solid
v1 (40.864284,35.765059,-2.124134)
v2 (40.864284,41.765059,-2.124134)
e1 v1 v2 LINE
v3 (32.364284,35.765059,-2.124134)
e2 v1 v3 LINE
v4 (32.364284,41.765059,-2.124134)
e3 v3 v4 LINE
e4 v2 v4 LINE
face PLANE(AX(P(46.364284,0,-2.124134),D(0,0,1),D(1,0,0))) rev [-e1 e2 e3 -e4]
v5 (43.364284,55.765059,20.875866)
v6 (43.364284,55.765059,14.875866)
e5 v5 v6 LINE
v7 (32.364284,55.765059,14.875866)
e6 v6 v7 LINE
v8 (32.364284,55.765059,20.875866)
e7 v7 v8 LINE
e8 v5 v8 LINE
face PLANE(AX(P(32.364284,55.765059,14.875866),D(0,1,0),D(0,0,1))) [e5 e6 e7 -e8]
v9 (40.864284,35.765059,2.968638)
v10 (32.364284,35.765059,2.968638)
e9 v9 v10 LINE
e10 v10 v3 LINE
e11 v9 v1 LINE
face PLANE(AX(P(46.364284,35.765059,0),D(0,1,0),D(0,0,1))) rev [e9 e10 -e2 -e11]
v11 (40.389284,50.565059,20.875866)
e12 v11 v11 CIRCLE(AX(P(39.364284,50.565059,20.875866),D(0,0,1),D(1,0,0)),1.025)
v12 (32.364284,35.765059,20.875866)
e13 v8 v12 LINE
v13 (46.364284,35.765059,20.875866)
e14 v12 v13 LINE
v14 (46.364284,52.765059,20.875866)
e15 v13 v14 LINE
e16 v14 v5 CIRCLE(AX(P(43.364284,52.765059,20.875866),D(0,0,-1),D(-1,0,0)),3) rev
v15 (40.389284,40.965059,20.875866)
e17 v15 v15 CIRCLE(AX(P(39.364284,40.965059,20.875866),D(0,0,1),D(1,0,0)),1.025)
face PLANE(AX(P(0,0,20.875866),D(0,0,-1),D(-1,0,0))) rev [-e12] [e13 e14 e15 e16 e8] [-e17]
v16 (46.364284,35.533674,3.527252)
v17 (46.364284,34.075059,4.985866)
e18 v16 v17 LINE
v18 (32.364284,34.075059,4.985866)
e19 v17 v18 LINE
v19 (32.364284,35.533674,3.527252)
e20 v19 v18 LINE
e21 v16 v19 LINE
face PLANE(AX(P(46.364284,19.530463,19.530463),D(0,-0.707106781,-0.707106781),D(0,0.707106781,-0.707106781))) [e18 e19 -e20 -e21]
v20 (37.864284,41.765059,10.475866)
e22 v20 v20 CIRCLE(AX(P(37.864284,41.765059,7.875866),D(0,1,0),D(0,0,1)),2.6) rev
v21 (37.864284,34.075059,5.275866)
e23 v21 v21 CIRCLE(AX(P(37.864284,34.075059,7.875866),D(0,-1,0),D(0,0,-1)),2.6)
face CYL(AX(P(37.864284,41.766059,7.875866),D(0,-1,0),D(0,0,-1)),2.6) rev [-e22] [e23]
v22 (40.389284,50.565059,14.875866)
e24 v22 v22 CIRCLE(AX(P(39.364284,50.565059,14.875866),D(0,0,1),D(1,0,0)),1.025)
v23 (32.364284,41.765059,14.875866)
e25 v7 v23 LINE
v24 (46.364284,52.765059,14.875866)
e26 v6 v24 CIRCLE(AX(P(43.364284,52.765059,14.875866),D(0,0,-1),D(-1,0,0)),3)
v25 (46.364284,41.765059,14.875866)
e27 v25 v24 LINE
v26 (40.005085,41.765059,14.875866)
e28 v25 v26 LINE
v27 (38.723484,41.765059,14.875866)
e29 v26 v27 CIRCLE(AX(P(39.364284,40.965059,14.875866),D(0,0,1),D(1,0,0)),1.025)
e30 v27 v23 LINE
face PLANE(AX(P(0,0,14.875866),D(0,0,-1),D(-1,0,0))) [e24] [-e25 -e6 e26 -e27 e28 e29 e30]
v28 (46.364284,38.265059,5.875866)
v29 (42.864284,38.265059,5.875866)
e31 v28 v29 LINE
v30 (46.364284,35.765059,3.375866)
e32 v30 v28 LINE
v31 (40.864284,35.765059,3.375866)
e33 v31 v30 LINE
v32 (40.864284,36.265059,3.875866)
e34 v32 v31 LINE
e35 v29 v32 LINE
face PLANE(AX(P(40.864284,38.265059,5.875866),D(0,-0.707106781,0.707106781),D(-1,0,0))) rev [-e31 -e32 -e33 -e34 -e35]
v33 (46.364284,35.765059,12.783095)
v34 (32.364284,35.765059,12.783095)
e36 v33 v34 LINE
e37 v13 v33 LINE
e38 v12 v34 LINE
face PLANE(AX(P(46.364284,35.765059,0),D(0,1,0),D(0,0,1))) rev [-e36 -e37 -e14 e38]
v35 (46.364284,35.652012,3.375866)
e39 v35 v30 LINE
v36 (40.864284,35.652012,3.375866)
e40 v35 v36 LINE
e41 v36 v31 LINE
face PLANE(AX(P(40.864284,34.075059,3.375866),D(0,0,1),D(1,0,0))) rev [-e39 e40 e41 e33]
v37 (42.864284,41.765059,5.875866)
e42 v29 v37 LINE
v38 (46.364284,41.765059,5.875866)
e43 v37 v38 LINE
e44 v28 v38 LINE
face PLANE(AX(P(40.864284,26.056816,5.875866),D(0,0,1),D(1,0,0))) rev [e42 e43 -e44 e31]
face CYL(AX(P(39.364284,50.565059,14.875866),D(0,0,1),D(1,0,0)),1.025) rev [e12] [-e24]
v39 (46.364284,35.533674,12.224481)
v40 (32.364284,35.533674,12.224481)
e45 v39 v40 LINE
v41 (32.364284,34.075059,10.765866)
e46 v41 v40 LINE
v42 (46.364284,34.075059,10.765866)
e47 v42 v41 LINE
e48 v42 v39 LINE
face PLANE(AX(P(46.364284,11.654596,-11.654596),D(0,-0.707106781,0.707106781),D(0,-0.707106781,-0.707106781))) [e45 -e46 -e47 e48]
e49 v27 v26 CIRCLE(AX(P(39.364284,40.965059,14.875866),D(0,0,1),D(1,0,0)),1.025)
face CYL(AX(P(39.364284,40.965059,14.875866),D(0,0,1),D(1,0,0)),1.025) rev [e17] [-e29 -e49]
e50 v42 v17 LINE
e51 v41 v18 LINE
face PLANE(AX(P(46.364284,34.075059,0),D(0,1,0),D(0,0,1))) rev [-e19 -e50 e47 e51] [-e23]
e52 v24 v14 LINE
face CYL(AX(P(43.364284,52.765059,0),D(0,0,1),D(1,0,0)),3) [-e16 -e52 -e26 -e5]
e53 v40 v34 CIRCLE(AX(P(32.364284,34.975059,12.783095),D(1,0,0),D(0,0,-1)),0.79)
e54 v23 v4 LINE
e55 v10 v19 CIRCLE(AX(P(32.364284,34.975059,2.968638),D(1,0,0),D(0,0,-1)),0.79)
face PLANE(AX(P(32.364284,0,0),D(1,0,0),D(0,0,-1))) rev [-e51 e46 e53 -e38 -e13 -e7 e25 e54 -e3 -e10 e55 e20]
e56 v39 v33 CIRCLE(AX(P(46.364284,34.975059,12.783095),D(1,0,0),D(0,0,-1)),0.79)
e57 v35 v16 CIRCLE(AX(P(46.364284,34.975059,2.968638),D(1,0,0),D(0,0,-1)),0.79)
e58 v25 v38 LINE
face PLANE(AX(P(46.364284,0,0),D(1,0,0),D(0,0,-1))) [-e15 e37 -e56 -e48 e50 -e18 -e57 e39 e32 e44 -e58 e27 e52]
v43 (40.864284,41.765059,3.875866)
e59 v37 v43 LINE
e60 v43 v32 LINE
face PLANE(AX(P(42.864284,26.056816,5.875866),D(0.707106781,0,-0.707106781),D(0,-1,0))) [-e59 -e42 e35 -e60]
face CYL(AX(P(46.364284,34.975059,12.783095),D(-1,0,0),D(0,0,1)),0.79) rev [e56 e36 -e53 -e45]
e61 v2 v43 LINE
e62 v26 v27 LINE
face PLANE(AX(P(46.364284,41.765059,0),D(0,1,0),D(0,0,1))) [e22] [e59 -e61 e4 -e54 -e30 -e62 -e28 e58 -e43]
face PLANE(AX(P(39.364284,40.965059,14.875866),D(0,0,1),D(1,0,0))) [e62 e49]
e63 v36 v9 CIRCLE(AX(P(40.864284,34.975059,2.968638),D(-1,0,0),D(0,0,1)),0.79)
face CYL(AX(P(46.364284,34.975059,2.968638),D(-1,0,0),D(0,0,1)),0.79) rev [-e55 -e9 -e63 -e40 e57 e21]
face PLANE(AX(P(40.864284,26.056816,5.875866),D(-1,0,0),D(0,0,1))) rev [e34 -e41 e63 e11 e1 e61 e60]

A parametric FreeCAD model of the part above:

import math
import FreeCAD as App
import Part
import Sketcher


def edges_at(feature, points):
    """Names of the edges that pass closest to the given points."""
    edges = feature.Shape.Edges
    near = lambda p: min(range(len(edges)), key=lambda i: edges[i].distToShape(Part.Vertex(*p))[0])
    return sorted({f"Edge{near(p) + 1}" for p in points})


def add_polygon(sketch, points):
    """Adds a closed chain of lines whose ends are joined by coincident constraints."""
    first, n = sketch.GeometryCount, len(points)
    for a, b in zip(points, points[1:] + points[:1]):
        sketch.addGeometry(Part.LineSegment(App.Vector(*a, 0), App.Vector(*b, 0)), False)
    for i in range(n):
        sketch.addConstraint(Sketcher.Constraint("Coincident", first + i, 2, first + (i + 1) % n, 1))

doc = App.newDocument("Part")
params = doc.addObject("Spreadsheet::Sheet", "Params")
for row, (alias, value) in enumerate([
    ("sketch1_width", "6 mm"),
    ("sketch1_height", "20 mm"),
    ("sketch1_radius", "0.79 mm"),
    ("sketch1_height2", "5.78 mm"),
    ("pad1_length", "14 mm"),
    ("sketch2_diameter", "5.2 mm"),
    ("sketch3_width", "14 mm"),
    ("sketch3_height", "20 mm"),
    ("pad2_length", "3 mm"),
    ("pad2_length2", "3 mm"),
    ("sketch4_diameter", "2.05 mm"),
    ("pocket2_length", "6 mm"),
    ("sketch5_height", "8 mm"),
    ("sketch5_width", "5.5 mm"),
    ("pocket3_length", "6 mm"),
    ("chamfer_size", "2 mm"),
    ("chamfer2_size", "2.5 mm"),
    ("sketch6_width", "5.5 mm"),
    ("fillet_radius", "3 mm"),
], start=1):
    params.set(f"A{row}", alias)
    params.set(f"B{row}", "=" + value)
    params.setAlias(f"B{row}", alias)

body = doc.addObject("PartDesign::Body", "Body")

sketch1 = body.newObject("Sketcher::SketchObject", "Sketch")
sketch1.AttachmentSupport = (doc.getObject("YZ_Plane"), [""])
sketch1.MapMode = "FlatFace"
sketch1.AttachmentOffset = App.Placement(App.Vector(0, 0, 32.364284), App.Rotation())
sketch1.addGeometry(Part.LineSegment(App.Vector(41.765059, 17.875866, 0), App.Vector(35.765059, 17.875866, 0)), False)
sketch1.addGeometry(Part.LineSegment(App.Vector(35.765059, 17.875866, 0), App.Vector(35.765059, 12.783095, 0)), False)
sketch1.addGeometry(Part.ArcOfCircle(Part.Circle(App.Vector(34.975059, 12.783095, 0), App.Vector(0, 0, 1), 0.79), math.radians(-45), math.radians(0)), False)
sketch1.addGeometry(Part.LineSegment(App.Vector(35.533674, 12.224481, 0), App.Vector(34.075059, 10.765866, 0)), False)
sketch1.addGeometry(Part.LineSegment(App.Vector(34.075059, 10.765866, 0), App.Vector(34.075059, 4.985866, 0)), False)
sketch1.addGeometry(Part.LineSegment(App.Vector(34.075059, 4.985866, 0), App.Vector(35.533674, 3.527252, 0)), False)
sketch1.addGeometry(Part.ArcOfCircle(Part.Circle(App.Vector(34.975059, 2.968638, 0), App.Vector(0, 0, 1), 0.79), math.radians(0), math.radians(45)), False)
sketch1.addGeometry(Part.LineSegment(App.Vector(35.765059, 2.968638, 0), App.Vector(35.765059, -2.124134, 0)), False)
sketch1.addGeometry(Part.LineSegment(App.Vector(35.765059, -2.124134, 0), App.Vector(41.765059, -2.124134, 0)), False)
sketch1.addGeometry(Part.LineSegment(App.Vector(41.765059, -2.124134, 0), App.Vector(41.765059, 17.875866, 0)), False)
sketch1.addConstraint(Sketcher.Constraint("Coincident", 0, 2, 1, 1))
sketch1.addConstraint(Sketcher.Constraint("Tangent", 1, 2, 2, 2))
sketch1.addConstraint(Sketcher.Constraint("Tangent", 2, 1, 3, 1))
sketch1.addConstraint(Sketcher.Constraint("Coincident", 3, 2, 4, 1))
sketch1.addConstraint(Sketcher.Constraint("Coincident", 4, 2, 5, 1))
sketch1.addConstraint(Sketcher.Constraint("Tangent", 5, 2, 6, 2))
sketch1.addConstraint(Sketcher.Constraint("Tangent", 6, 1, 7, 1))
sketch1.addConstraint(Sketcher.Constraint("Coincident", 7, 2, 8, 1))
sketch1.addConstraint(Sketcher.Constraint("Coincident", 8, 2, 9, 1))
sketch1.addConstraint(Sketcher.Constraint("Coincident", 9, 2, 0, 1))
sketch1.addConstraint(Sketcher.Constraint("Horizontal", 0))
sketch1.addConstraint(Sketcher.Constraint("Vertical", 1))
sketch1.addConstraint(Sketcher.Constraint("Vertical", 4))
sketch1.addConstraint(Sketcher.Constraint("Vertical", 7))
sketch1.addConstraint(Sketcher.Constraint("Horizontal", 8))
sketch1.addConstraint(Sketcher.Constraint("Vertical", 9))
sketch1.addConstraint(Sketcher.Constraint("Equal", 2, 6))
sketch1.addConstraint(Sketcher.Constraint("Perpendicular", 3, 5))
sketch1.addConstraint(Sketcher.Constraint("Vertical", 2, 3, 6, 3))
sketch1.addConstraint(Sketcher.Constraint("Vertical", 2, 1, 5, 2))
sketch1.addConstraint(Sketcher.Constraint("Equal", 1, 7))
sketch1.addConstraint(Sketcher.Constraint("DistanceX", 0, 2, 0, 1, 6.0))
sketch1.addConstraint(Sketcher.Constraint("DistanceY", 9, 1, 9, 2, 20.0))
sketch1.addConstraint(Sketcher.Constraint("Radius", 2, 0.79))
sketch1.addConstraint(Sketcher.Constraint("DistanceY", 4, 2, 4, 1, 5.78))
sketch1.addConstraint(Sketcher.Constraint("DistanceX", 3, 2, 2, 3, 0.9))
sketch1.addConstraint(Sketcher.Constraint("DistanceX", -1, 1, 2, 3, 34.975059))
sketch1.addConstraint(Sketcher.Constraint("DistanceY", -1, 1, 2, 1, 12.224481))
sketch1.setExpression("Constraints[21]", "Params.sketch1_width")
sketch1.setExpression("Constraints[22]", "Params.sketch1_height")
sketch1.setExpression("Constraints[23]", "Params.sketch1_radius")
sketch1.setExpression("Constraints[24]", "Params.sketch1_height2")
pad1 = body.newObject("PartDesign::Pad", "Pad")
pad1.Profile = sketch1
pad1.setExpression("Length", "Params.pad1_length")

sketch2 = body.newObject("Sketcher::SketchObject", "Sketch001")
sketch2.AttachmentSupport = (doc.getObject("XZ_Plane"), [""])
sketch2.MapMode = "FlatFace"
sketch2.AttachmentOffset = App.Placement(App.Vector(0, 0, -34.075059), App.Rotation())
sketch2.addGeometry(Part.Circle(App.Vector(37.864284, 7.875866, 0), App.Vector(0, 0, 1), 2.6), False)
sketch2.addConstraint(Sketcher.Constraint("Diameter", 0, 5.2))
sketch2.addConstraint(Sketcher.Constraint("DistanceX", -1, 1, 0, 3, 37.864284))
sketch2.addConstraint(Sketcher.Constraint("DistanceY", -1, 1, 0, 3, 7.875866))
sketch2.setExpression("Constraints[0]", "Params.sketch2_diameter")
pocket1 = body.newObject("PartDesign::Pocket", "Pocket")
pocket1.Profile = sketch2
pocket1.Type = "UpToFirst"

sketch3 = body.newObject("Sketcher::SketchObject", "Sketch002")
sketch3.AttachmentSupport = (doc.getObject("XY_Plane"), [""])
sketch3.MapMode = "FlatFace"
sketch3.AttachmentOffset = App.Placement(App.Vector(0, 0, 17.875866), App.Rotation())
add_polygon(sketch3, [(32.364284, 55.765059), (32.364284, 35.765059), (46.364284, 35.765059), (46.364284, 55.765059)])
sketch3.addConstraint(Sketcher.Constraint("Vertical", 0))
sketch3.addConstraint(Sketcher.Constraint("Horizontal", 1))
sketch3.addConstraint(Sketcher.Constraint("Vertical", 2))
sketch3.addConstraint(Sketcher.Constraint("Horizontal", 3))
sketch3.addConstraint(Sketcher.Constraint("DistanceX", 1, 1, 1, 2, 14.0))
sketch3.addConstraint(Sketcher.Constraint("DistanceY", 0, 2, 0, 1, 20.0))
sketch3.addConstraint(Sketcher.Constraint("DistanceY", -1, 1, 0, 2, 35.765059))
sketch3.addConstraint(Sketcher.Constraint("DistanceX", -1, 1, 0, 2, 32.364284))
sketch3.setExpression("Constraints[8]", "Params.sketch3_width")
sketch3.setExpression("Constraints[9]", "Params.sketch3_height")
pad2 = body.newObject("PartDesign::Pad", "Pad001")
pad2.Profile = sketch3
pad2.Type = "TwoLengths"
pad2.setExpression("Length", "Params.pad2_length")
pad2.setExpression("Length2", "Params.pad2_length2")

sketch4 = body.newObject("Sketcher::SketchObject", "Sketch003")
sketch4.AttachmentSupport = (doc.getObject("XY_Plane"), [""])
sketch4.MapMode = "FlatFace"
sketch4.AttachmentOffset = App.Placement(App.Vector(0, 0, 20.875866), App.Rotation())
sketch4.addGeometry(Part.Circle(App.Vector(39.364284, 50.565059, 0), App.Vector(0, 0, 1), 1.025), False)
sketch4.addGeometry(Part.Circle(App.Vector(39.364284, 40.965059, 0), App.Vector(0, 0, 1), 1.025), False)
sketch4.addConstraint(Sketcher.Constraint("Equal", 0, 1))
sketch4.addConstraint(Sketcher.Constraint("Vertical", 0, 3, 1, 3))
sketch4.addConstraint(Sketcher.Constraint("Diameter", 0, 2.05))
sketch4.addConstraint(Sketcher.Constraint("DistanceY", 1, 3, 0, 3, 9.6))
sketch4.addConstraint(Sketcher.Constraint("DistanceY", -1, 1, 0, 3, 50.565059))
sketch4.addConstraint(Sketcher.Constraint("DistanceX", -1, 1, 0, 3, 39.364284))
sketch4.setExpression("Constraints[2]", "Params.sketch4_diameter")
pocket2 = body.newObject("PartDesign::Pocket", "Pocket001")
pocket2.Profile = sketch4
pocket2.setExpression("Length", "Params.pocket2_length")

sketch5 = body.newObject("Sketcher::SketchObject", "Sketch004")
sketch5.AttachmentSupport = (doc.getObject("XZ_Plane"), [""])
sketch5.MapMode = "FlatFace"
sketch5.AttachmentOffset = App.Placement(App.Vector(0, 0, -41.765059), App.Rotation())
add_polygon(sketch5, [(40.864284, -2.124134), (40.864284, 5.875866), (46.364284, 5.875866), (46.364284, -2.124134)])
sketch5.addConstraint(Sketcher.Constraint("Vertical", 0))
sketch5.addConstraint(Sketcher.Constraint("Horizontal", 1))
sketch5.addConstraint(Sketcher.Constraint("Vertical", 2))
sketch5.addConstraint(Sketcher.Constraint("Horizontal", 3))
sketch5.addConstraint(Sketcher.Constraint("DistanceY", 0, 1, 0, 2, 8.0))
sketch5.addConstraint(Sketcher.Constraint("DistanceX", 1, 1, 1, 2, 5.5))
sketch5.addConstraint(Sketcher.Constraint("DistanceX", -1, 1, 0, 2, 40.864284))
sketch5.addConstraint(Sketcher.Constraint("DistanceY", -1, 1, 0, 2, 5.875866))
sketch5.setExpression("Constraints[8]", "Params.sketch5_height")
sketch5.setExpression("Constraints[9]", "Params.sketch5_width")
pocket3 = body.newObject("PartDesign::Pocket", "Pocket002")
pocket3.Profile = sketch5
pocket3.setExpression("Length", "Params.pocket3_length")
pocket3.Reversed = True
doc.recompute()

chamfer = body.newObject("PartDesign::Chamfer", "Chamfer")
chamfer.Base = (pocket3, edges_at(pocket3, [(40.864, 38.765, 5.876)]))
chamfer.setExpression("Size", "Params.chamfer_size")
doc.recompute()

chamfer2 = body.newObject("PartDesign::Chamfer", "Chamfer001")
chamfer2.Base = (chamfer, edges_at(chamfer, [(44.614, 35.765, 5.876)]))
chamfer2.setExpression("Size", "Params.chamfer2_size")

sketch6 = body.newObject("Sketcher::SketchObject", "Sketch005")
sketch6.AttachmentSupport = (doc.getObject("XZ_Plane"), [""])
sketch6.MapMode = "FlatFace"
sketch6.AttachmentOffset = App.Placement(App.Vector(0, 0, -35.765059), App.Rotation())
add_polygon(sketch6, [(40.864284, 2.968638), (40.864284, 3.375866), (46.364284, 3.375866), (46.364284, 2.968638)])
sketch6.addConstraint(Sketcher.Constraint("Vertical", 0))
sketch6.addConstraint(Sketcher.Constraint("Horizontal", 1))
sketch6.addConstraint(Sketcher.Constraint("Vertical", 2))
sketch6.addConstraint(Sketcher.Constraint("Horizontal", 3))
sketch6.addConstraint(Sketcher.Constraint("DistanceX", 1, 1, 1, 2, 5.5))
sketch6.addConstraint(Sketcher.Constraint("DistanceY", 0, 1, 0, 2, 0.407229))
sketch6.addConstraint(Sketcher.Constraint("DistanceX", -1, 1, 0, 2, 40.864284))
sketch6.addConstraint(Sketcher.Constraint("DistanceY", -1, 1, 0, 2, 3.375866))
sketch6.setExpression("Constraints[8]", "Params.sketch6_width")
pocket4 = body.newObject("PartDesign::Pocket", "Pocket003")
pocket4.Profile = sketch6
pocket4.Type = "ThroughAll"
pocket4.Reversed = True
doc.recompute()

fillet = body.newObject("PartDesign::Fillet", "Fillet")
fillet.Base = (pocket4, edges_at(pocket4, [(46.364, 55.765, 17.876)]))
fillet.setExpression("Radius", "Params.fillet_radius")

doc.recompute()
